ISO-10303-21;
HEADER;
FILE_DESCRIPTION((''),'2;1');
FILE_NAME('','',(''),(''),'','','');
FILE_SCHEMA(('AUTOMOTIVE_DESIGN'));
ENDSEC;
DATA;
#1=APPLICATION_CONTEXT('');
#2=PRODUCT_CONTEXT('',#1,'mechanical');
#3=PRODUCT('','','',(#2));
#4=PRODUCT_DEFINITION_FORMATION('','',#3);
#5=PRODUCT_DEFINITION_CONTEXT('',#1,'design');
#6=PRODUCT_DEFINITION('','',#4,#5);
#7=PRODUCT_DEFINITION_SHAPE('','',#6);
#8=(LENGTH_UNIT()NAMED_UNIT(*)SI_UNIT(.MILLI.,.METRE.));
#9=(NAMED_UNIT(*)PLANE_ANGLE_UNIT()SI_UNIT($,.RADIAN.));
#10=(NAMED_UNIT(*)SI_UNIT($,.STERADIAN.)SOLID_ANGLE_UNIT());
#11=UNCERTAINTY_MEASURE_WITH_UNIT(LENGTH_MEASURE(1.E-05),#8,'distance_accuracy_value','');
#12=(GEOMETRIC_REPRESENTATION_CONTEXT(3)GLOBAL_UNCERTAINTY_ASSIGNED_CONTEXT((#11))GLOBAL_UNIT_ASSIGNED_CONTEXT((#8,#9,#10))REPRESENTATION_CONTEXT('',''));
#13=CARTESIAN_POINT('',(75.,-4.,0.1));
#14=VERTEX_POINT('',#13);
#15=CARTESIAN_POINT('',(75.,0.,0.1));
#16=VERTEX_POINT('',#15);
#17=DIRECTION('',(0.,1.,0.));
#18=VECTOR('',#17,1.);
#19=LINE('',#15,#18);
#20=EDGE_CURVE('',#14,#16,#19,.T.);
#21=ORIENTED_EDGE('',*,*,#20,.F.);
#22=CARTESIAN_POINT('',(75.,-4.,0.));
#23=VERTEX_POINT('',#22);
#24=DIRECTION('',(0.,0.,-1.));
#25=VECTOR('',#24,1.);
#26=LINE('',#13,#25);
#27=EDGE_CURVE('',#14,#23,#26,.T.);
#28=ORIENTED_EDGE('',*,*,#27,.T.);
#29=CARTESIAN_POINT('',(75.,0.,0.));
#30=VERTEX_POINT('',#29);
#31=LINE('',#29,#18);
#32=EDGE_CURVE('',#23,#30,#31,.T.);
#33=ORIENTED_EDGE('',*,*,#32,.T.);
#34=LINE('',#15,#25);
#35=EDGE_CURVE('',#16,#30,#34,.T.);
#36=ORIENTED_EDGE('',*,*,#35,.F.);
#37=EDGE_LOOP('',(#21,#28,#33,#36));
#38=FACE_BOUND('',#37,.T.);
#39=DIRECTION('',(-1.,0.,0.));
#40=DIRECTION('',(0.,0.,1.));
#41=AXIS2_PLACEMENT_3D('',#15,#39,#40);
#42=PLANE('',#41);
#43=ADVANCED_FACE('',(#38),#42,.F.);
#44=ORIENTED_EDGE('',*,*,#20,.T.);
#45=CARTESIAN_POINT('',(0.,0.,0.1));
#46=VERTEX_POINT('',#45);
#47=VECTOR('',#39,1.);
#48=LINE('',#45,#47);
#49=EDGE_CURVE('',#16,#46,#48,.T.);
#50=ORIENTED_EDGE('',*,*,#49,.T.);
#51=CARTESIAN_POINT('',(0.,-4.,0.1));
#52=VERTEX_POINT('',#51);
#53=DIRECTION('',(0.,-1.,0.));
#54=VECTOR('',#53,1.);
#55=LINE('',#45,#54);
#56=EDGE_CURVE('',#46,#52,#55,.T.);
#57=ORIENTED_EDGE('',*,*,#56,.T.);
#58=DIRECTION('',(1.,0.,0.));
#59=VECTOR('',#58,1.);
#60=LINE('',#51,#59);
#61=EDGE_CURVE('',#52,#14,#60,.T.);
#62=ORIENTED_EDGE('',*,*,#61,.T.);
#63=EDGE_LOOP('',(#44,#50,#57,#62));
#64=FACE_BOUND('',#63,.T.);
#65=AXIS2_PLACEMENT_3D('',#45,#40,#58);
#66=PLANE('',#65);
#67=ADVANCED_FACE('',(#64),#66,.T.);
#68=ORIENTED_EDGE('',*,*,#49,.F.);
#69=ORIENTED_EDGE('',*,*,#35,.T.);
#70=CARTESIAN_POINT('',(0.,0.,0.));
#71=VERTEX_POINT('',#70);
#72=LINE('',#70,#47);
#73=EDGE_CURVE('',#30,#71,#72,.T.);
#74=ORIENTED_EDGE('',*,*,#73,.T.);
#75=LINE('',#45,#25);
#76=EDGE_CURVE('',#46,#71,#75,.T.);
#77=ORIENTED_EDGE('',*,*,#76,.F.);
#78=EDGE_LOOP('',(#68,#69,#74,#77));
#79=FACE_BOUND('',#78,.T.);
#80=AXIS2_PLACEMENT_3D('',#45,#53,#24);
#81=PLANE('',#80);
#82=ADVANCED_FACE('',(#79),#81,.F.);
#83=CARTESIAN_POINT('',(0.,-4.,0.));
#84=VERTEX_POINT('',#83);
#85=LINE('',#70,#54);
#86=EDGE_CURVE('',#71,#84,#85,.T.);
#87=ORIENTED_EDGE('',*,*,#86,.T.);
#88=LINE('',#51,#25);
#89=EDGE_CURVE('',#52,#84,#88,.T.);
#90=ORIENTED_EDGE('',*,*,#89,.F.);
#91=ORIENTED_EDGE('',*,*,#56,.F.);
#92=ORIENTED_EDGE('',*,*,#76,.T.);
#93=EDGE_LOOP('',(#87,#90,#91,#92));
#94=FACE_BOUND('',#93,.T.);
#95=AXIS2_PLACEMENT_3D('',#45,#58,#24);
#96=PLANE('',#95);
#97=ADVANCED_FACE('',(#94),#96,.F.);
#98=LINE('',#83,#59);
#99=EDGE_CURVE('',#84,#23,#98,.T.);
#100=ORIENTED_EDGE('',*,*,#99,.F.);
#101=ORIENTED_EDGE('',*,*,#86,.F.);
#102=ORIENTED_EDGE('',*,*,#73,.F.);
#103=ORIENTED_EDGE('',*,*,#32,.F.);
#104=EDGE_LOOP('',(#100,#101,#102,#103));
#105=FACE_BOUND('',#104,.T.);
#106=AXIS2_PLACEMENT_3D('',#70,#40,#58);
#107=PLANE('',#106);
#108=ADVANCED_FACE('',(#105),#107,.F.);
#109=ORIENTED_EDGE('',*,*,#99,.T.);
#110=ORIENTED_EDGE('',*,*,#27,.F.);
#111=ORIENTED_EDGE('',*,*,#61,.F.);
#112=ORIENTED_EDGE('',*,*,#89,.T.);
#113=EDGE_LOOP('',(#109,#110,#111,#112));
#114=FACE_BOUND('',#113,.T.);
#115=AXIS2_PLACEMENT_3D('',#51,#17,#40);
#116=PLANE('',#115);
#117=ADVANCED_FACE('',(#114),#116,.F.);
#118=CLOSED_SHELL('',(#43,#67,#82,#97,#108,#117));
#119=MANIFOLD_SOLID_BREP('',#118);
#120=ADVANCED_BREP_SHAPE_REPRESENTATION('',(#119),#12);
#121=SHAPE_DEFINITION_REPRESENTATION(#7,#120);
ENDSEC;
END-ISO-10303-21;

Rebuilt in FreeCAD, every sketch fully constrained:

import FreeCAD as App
import Part
import Sketcher

V = App.Vector
Q = App.Units.Quantity


def add_polygon(sketch, points):
    """Adds a closed chain of lines whose ends are joined by coincident constraints."""
    first, n = sketch.GeometryCount, len(points)
    for a, b in zip(points, points[1:] + points[:1]):
        sketch.addGeometry(Part.LineSegment(App.Vector(*a, 0), App.Vector(*b, 0)), False)
    for i in range(n):
        sketch.addConstraint(Sketcher.Constraint("Coincident", first + i, 2, first + (i + 1) % n, 1))

doc = App.newDocument("Part")
params = doc.addObject("Spreadsheet::Sheet", "Params")
for row, (alias, value) in enumerate([
    ("sketch1_width", "75 mm"),
    ("sketch1_height", "4 mm"),
    ("pad1_length", "0.1 mm"),
], start=1):
    params.set(f"A{row}", alias)
    params.set(f"B{row}", "=" + value)
    params.setAlias(f"B{row}", alias)

body = doc.addObject("PartDesign::Body", "Body")

sketch1 = doc.addObject("Sketcher::SketchObject", "Sketch")
body.addObject(sketch1)
sketch1.AttachmentSupport = (doc.XY_Plane, [""])
sketch1.MapMode = "FlatFace"
add_polygon(sketch1, [(0, 0), (0, -4), (75, -4), (75, 0)])
sketch1.addConstraint([
    Sketcher.Constraint("Vertical", 0),
    Sketcher.Constraint("Horizontal", 1),
    Sketcher.Constraint("Vertical", 2),
    Sketcher.Constraint("Horizontal", 3),
    Sketcher.Constraint("Coincident", 3, 2, -1, 1),
    Sketcher.Constraint("DistanceX", 1, 1, 1, 2, Q("75 mm")),
    Sketcher.Constraint("DistanceY", 0, 2, 0, 1, Q("4 mm")),
])
sketch1.setExpression("Constraints[9]", "Params.sketch1_width")
sketch1.setExpression("Constraints[10]", "Params.sketch1_height")
pad1 = doc.addObject("PartDesign::Pad", "Pad")
body.addObject(pad1)
pad1.Profile = sketch1
pad1.setExpression("Length", "Params.pad1_length")

doc.recompute()
